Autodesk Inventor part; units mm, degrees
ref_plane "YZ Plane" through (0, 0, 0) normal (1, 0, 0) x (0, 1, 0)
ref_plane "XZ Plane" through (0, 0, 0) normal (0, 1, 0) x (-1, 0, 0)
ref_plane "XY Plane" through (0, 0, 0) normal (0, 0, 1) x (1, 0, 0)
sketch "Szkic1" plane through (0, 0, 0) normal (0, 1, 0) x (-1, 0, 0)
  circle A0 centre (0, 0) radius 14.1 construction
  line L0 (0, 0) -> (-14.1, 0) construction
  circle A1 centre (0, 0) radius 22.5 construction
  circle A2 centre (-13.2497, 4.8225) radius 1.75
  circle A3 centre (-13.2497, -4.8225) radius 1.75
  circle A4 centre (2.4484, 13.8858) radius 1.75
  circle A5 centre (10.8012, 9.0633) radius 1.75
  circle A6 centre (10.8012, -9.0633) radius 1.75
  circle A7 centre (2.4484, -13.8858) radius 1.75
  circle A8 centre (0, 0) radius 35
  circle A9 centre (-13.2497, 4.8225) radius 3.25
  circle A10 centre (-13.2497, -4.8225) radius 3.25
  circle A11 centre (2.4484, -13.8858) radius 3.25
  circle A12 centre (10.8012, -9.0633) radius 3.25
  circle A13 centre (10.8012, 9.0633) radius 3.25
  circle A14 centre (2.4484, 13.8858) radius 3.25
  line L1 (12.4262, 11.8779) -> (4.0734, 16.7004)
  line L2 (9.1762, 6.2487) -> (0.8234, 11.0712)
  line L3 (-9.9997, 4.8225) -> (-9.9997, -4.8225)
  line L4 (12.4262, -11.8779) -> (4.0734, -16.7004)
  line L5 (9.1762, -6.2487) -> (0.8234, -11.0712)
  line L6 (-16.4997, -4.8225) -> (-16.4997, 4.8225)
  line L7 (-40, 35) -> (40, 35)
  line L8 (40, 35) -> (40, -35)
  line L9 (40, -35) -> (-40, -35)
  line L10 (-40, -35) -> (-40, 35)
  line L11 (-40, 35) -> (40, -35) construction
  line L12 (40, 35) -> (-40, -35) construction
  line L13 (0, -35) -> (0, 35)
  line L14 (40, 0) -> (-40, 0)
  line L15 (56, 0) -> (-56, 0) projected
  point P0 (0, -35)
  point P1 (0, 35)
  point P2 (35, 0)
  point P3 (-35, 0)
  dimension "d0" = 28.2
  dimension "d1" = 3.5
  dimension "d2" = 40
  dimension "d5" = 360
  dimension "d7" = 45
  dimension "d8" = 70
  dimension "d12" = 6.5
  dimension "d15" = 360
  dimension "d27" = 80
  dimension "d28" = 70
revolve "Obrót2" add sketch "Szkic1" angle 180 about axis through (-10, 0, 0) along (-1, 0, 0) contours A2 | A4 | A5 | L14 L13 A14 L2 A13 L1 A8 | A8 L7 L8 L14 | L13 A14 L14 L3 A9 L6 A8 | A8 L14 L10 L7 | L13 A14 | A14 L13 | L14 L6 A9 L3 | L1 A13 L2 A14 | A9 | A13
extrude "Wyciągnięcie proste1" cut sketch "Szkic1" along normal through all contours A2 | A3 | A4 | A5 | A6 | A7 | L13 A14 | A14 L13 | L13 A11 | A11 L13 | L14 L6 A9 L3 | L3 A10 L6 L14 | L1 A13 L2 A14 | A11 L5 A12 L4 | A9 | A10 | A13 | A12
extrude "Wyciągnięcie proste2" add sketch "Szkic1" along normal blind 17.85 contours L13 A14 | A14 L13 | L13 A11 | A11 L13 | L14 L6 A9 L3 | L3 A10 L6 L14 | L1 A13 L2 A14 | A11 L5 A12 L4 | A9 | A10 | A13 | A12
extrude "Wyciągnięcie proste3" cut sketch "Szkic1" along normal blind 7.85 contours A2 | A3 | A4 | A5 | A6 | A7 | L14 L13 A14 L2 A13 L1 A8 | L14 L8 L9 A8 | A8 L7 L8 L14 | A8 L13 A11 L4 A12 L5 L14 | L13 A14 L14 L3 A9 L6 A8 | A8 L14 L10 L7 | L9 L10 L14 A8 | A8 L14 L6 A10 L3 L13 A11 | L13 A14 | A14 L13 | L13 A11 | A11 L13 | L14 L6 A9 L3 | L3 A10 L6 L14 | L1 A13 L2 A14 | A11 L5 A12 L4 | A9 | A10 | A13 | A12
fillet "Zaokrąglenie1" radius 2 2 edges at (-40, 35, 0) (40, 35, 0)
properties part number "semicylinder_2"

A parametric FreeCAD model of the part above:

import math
import FreeCAD as App
import Part
import Sketcher
Q = App.Units.Quantity


def edges_at(feature, points):
    """Names of the edges that pass closest to the given points."""
    edges = feature.Shape.Edges
    near = lambda p: min(range(len(edges)), key=lambda i: edges[i].distToShape(Part.Vertex(*p))[0])
    return sorted({f"Edge{near(p) + 1}" for p in points})


def add_polygon(sketch, points):
    """Adds a closed chain of lines whose ends are joined by coincident constraints."""
    first, n = sketch.GeometryCount, len(points)
    for a, b in zip(points, points[1:] + points[:1]):
        sketch.addGeometry(Part.LineSegment(App.Vector(*a, 0), App.Vector(*b, 0)), False)
    for i in range(n):
        sketch.addConstraint(Sketcher.Constraint("Coincident", first + i, 2, first + (i + 1) % n, 1))

doc = App.newDocument("Part")
params = doc.addObject("Spreadsheet::Sheet", "Params")
for row, (alias, value) in enumerate([
    ("sketch1_width", "80 mm"),
    ("sketch1_height", "35 mm"),
    ("revolution_angle", "180 deg"),
    ("sketch2_radius", "3.25 mm"),
    ("sketch3_diameter", "3.5 mm"),
    ("sketch3_radius", "3.25 mm"),
    ("pad1_length", "17.85 mm"),
    ("sketch4_width", "80 mm"),
    ("sketch4_height", "70 mm"),
    ("pocket2_length", "7.85 mm"),
    ("fillet_radius", "2 mm"),
], start=1):
    params.set(f"A{row}", alias)
    params.set(f"B{row}", "=" + value)
    params.setAlias(f"B{row}", alias)

body = doc.addObject("PartDesign::Body", "Body")

sketch1 = body.newObject("Sketcher::SketchObject", "Sketch")
sketch1.AttachmentSupport = (doc.getObject("XZ_Plane"), [""])
sketch1.MapMode = "FlatFace"
add_polygon(sketch1, [(-40, 0), (-40, 35), (40, 35), (40, 0)])
sketch1.addConstraint([
    Sketcher.Constraint("Vertical", 0),
    Sketcher.Constraint("Horizontal", 1),
    Sketcher.Constraint("Vertical", 2),
    Sketcher.Constraint("Horizontal", 3),
    Sketcher.Constraint("Symmetric", 2, 2, 3, 2, -1, 1),
    Sketcher.Constraint("DistanceX", 1, 1, 1, 2, 80.0),
    Sketcher.Constraint("DistanceY", 0, 1, 0, 2, 35.0),
])
sketch1.setExpression("Constraints[9]", "Params.sketch1_width")
sketch1.setExpression("Constraints[10]", "Params.sketch1_height")
revolution = body.newObject("PartDesign::Revolution", "Revolution")
revolution.Profile = sketch1
revolution.ReferenceAxis = (sketch1, ["H_Axis"])
revolution.setExpression("Angle", "Params.revolution_angle")
revolution.Reversed = True

sketch2 = body.newObject("Sketcher::SketchObject", "Sketch001")
sketch2.AttachmentSupport = (doc.getObject("XZ_Plane"), [""])
sketch2.MapMode = "FlatFace"
sketch2.addGeometry([
    Part.ArcOfCircle(Part.Circle(App.Vector(13.2, 4.8, 0), App.Vector(0, 0, 1), 3.2), math.radians(0), math.radians(180)),
    Part.LineSegment(App.Vector(16.5, 4.8, 0), App.Vector(16.5, -4.8, 0)),
    Part.ArcOfCircle(Part.Circle(App.Vector(13.2, -4.8, 0), App.Vector(0, 0, 1), 3.2), math.radians(180), math.radians(360)),
    Part.LineSegment(App.Vector(10, -4.8, 0), App.Vector(10, 4.8, 0)),
    Part.ArcOfCircle(Part.Circle(App.Vector(-2.4, 13.9, 0), App.Vector(0, 0, 1), 3.2), math.radians(-60), math.radians(120)),
    Part.LineSegment(App.Vector(-0.8, 11.1, 0), App.Vector(-9.2, 6.2, 0)),
    Part.ArcOfCircle(Part.Circle(App.Vector(-10.8, 9.1, 0), App.Vector(0, 0, 1), 3.2), math.radians(120), math.radians(300)),
    Part.LineSegment(App.Vector(-12.4, 11.9, 0), App.Vector(-4.1, 16.7, 0)),
    Part.LineSegment(App.Vector(-9.2, -6.2, 0), App.Vector(-0.8, -11.1, 0)),
    Part.ArcOfCircle(Part.Circle(App.Vector(-2.4, -13.9, 0), App.Vector(0, 0, 1), 3.2), math.radians(-120), math.radians(60)),
    Part.LineSegment(App.Vector(-4.1, -16.7, 0), App.Vector(-12.4, -11.9, 0)),
    Part.ArcOfCircle(Part.Circle(App.Vector(-10.8, -9.1, 0), App.Vector(0, 0, 1), 3.2), math.radians(60), math.radians(240)),
], False)
sketch2.addConstraint([
    Sketcher.Constraint("Tangent", 0, 1, 1, 1),
    Sketcher.Constraint("Tangent", 1, 2, 2, 2),
    Sketcher.Constraint("Tangent", 2, 1, 3, 1),
    Sketcher.Constraint("Tangent", 3, 2, 0, 2),
    Sketcher.Constraint("Tangent", 4, 1, 5, 1),
    Sketcher.Constraint("Tangent", 5, 2, 6, 2),
    Sketcher.Constraint("Tangent", 6, 1, 7, 1),
    Sketcher.Constraint("Tangent", 7, 2, 4, 2),
    Sketcher.Constraint("Tangent", 8, 2, 9, 2),
    Sketcher.Constraint("Tangent", 9, 1, 10, 1),
    Sketcher.Constraint("Tangent", 10, 2, 11, 2),
    Sketcher.Constraint("Tangent", 11, 1, 8, 1),
    Sketcher.Constraint("Vertical", 1),
    Sketcher.Constraint("Vertical", 3),
    Sketcher.Constraint("Equal", 2, 4),
    Sketcher.Constraint("Equal", 4, 6),
    Sketcher.Constraint("Equal", 6, 9),
    Sketcher.Constraint("Equal", 9, 11),
    Sketcher.Constraint("Symmetric", 4, 3, 9, 3, -1),
    Sketcher.Constraint("Symmetric", 6, 3, 11, 3, -1),
    Sketcher.Constraint("Radius", 0, 3.25),
    Sketcher.Constraint("Angle", 5, Q("-150 deg")),
    Sketcher.Constraint("DistanceY", 1, 2, 1, 1, 9.645),
    Sketcher.Constraint("Distance", 5, 9.645),
    Sketcher.Constraint("DistanceY", -1, 1, 6, 1, 11.878),
    Sketcher.Constraint("DistanceX", 4, 3, 0, 3, 15.698),
    Sketcher.Constraint("DistanceY", 9, 1, 2, 1, 11.878),
    Sketcher.Constraint("DistanceX", -1, 1, 0, 3, 13.2497),
])
sketch2.setExpression("Constraints[20]", "Params.sketch2_radius")
pocket1 = body.newObject("PartDesign::Pocket", "Pocket")
pocket1.Profile = sketch2
pocket1.Type = "ThroughAll"

sketch3 = body.newObject("Sketcher::SketchObject", "Sketch002")
sketch3.AttachmentSupport = (doc.getObject("XZ_Plane"), [""])
sketch3.MapMode = "FlatFace"
sketch3.addGeometry([
    Part.LineSegment(App.Vector(-0.8, 11.1, 0), App.Vector(-9.2, 6.2, 0)),
    Part.ArcOfCircle(Part.Circle(App.Vector(-10.8, 9.1, 0), App.Vector(0, 0, 1), 3.2), math.radians(120), math.radians(300)),
    Part.LineSegment(App.Vector(-12.4, 11.9, 0), App.Vector(-4.1, 16.7, 0)),
    Part.ArcOfCircle(Part.Circle(App.Vector(-2.4, 13.9, 0), App.Vector(0, 0, 1), 3.2), math.radians(-60), math.radians(120)),
    Part.Circle(App.Vector(-2.4, 13.9, 0), App.Vector(0, 0, 1), 1.8),
    Part.Circle(App.Vector(-10.8, 9.1, 0), App.Vector(0, 0, 1), 1.8),
    Part.ArcOfCircle(Part.Circle(App.Vector(-2.4, -13.9, 0), App.Vector(0, 0, 1), 3.2), math.radians(-120), math.radians(60)),
    Part.LineSegment(App.Vector(-4.1, -16.7, 0), App.Vector(-12.4, -11.9, 0)),
    Part.ArcOfCircle(Part.Circle(App.Vector(-10.8, -9.1, 0), App.Vector(0, 0, 1), 3.2), math.radians(60), math.radians(240)),
    Part.LineSegment(App.Vector(-9.2, -6.2, 0), App.Vector(-0.8, -11.1, 0)),
    Part.Circle(App.Vector(-2.4, -13.9, 0), App.Vector(0, 0, 1), 1.8),
    Part.Circle(App.Vector(-10.8, -9.1, 0), App.Vector(0, 0, 1), 1.8),
    Part.LineSegment(App.Vector(16.5, 4.8, 0), App.Vector(16.5, -4.8, 0)),
    Part.ArcOfCircle(Part.Circle(App.Vector(13.2, -4.8, 0), App.Vector(0, 0, 1), 3.2), math.radians(180), math.radians(360)),
    Part.LineSegment(App.Vector(10, -4.8, 0), App.Vector(10, 4.8, 0)),
    Part.ArcOfCircle(Part.Circle(App.Vector(13.2, 4.8, 0), App.Vector(0, 0, 1), 3.2), math.radians(0), math.radians(180)),
    Part.Circle(App.Vector(13.2, 4.8, 0), App.Vector(0, 0, 1), 1.8),
    Part.Circle(App.Vector(13.2, -4.8, 0), App.Vector(0, 0, 1), 1.8),
], False)
sketch3.addConstraint([
    Sketcher.Constraint("Tangent", 0, 2, 1, 2),
    Sketcher.Constraint("Tangent", 1, 1, 2, 1),
    Sketcher.Constraint("Tangent", 2, 2, 3, 2),
    Sketcher.Constraint("Tangent", 3, 1, 0, 1),
    Sketcher.Constraint("Tangent", 6, 1, 7, 1),
    Sketcher.Constraint("Tangent", 7, 2, 8, 2),
    Sketcher.Constraint("Tangent", 8, 1, 9, 1),
    Sketcher.Constraint("Tangent", 9, 2, 6, 2),
    Sketcher.Constraint("Tangent", 12, 2, 13, 2),
    Sketcher.Constraint("Tangent", 13, 1, 14, 1),
    Sketcher.Constraint("Tangent", 14, 2, 15, 2),
    Sketcher.Constraint("Tangent", 15, 1, 12, 1),
    Sketcher.Constraint("Vertical", 12),
    Sketcher.Constraint("Vertical", 14),
    Sketcher.Constraint("Coincident", 4, 3, 3, 3),
    Sketcher.Constraint("Coincident", 5, 3, 1, 3),
    Sketcher.Constraint("Coincident", 10, 3, 6, 3),
    Sketcher.Constraint("Coincident", 11, 3, 8, 3),
    Sketcher.Constraint("Coincident", 16, 3, 15, 3),
    Sketcher.Constraint("Coincident", 17, 3, 13, 3),
    Sketcher.Constraint("Equal", 1, 3),
    Sketcher.Constraint("Equal", 4, 5),
    Sketcher.Constraint("Equal", 3, 6),
    Sketcher.Constraint("Equal", 6, 8),
    Sketcher.Constraint("Equal", 5, 10),
    Sketcher.Constraint("Equal", 10, 11),
    Sketcher.Constraint("Equal", 8, 13),
    Sketcher.Constraint("Equal", 11, 16),
    Sketcher.Constraint("Equal", 16, 17),
    Sketcher.Constraint("Symmetric", 3, 3, 6, 3, -1),
    Sketcher.Constraint("Symmetric", 1, 3, 8, 3, -1),
    Sketcher.Constraint("Diameter", 4, 3.5),
    Sketcher.Constraint("Radius", 1, 3.25),
    Sketcher.Constraint("Angle", 0, Q("-150 deg")),
    Sketcher.Constraint("DistanceY", 12, 2, 12, 1, 9.645),
    Sketcher.Constraint("Distance", 0, 9.645),
    Sketcher.Constraint("DistanceY", -1, 1, 1, 1, 11.878),
    Sketcher.Constraint("DistanceX", 6, 3, 13, 3, 15.698),
    Sketcher.Constraint("DistanceY", 6, 1, 13, 3, 11.878),
    Sketcher.Constraint("DistanceX", 1, 3, -1, 1, 10.8012),
])
sketch3.setExpression("Constraints[31]", "Params.sketch3_diameter")
sketch3.setExpression("Constraints[32]", "Params.sketch3_radius")
pad1 = body.newObject("PartDesign::Pad", "Pad")
pad1.Profile = sketch3
pad1.setExpression("Length", "Params.pad1_length")
pad1.Reversed = True

sketch4 = body.newObject("Sketcher::SketchObject", "Sketch003")
sketch4.AttachmentSupport = (doc.getObject("XZ_Plane"), [""])
sketch4.MapMode = "FlatFace"
add_polygon(sketch4, [(40, 35), (40, -35), (-40, -35), (-40, 35)])
sketch4.addConstraint([
    Sketcher.Constraint("Vertical", 0),
    Sketcher.Constraint("Horizontal", 1),
    Sketcher.Constraint("Vertical", 2),
    Sketcher.Constraint("Horizontal", 3),
    Sketcher.Constraint("Symmetric", 0, 2, 2, 2, -1, 1),
    Sketcher.Constraint("DistanceX", 1, 2, 1, 1, 80.0),
    Sketcher.Constraint("DistanceY", 0, 2, 0, 1, 70.0),
])
sketch4.setExpression("Constraints[9]", "Params.sketch4_width")
sketch4.setExpression("Constraints[10]", "Params.sketch4_height")
pocket2 = body.newObject("PartDesign::Pocket", "Pocket001")
pocket2.Profile = sketch4
pocket2.setExpression("Length", "Params.pocket2_length")
doc.recompute()

fillet = body.newObject("PartDesign::Fillet", "Fillet")
fillet.Base = (pocket2, edges_at(pocket2, [(-40, 35, 0), (40, 35, 0)]))
fillet.setExpression("Radius", "Params.fillet_radius")

doc.recompute()
